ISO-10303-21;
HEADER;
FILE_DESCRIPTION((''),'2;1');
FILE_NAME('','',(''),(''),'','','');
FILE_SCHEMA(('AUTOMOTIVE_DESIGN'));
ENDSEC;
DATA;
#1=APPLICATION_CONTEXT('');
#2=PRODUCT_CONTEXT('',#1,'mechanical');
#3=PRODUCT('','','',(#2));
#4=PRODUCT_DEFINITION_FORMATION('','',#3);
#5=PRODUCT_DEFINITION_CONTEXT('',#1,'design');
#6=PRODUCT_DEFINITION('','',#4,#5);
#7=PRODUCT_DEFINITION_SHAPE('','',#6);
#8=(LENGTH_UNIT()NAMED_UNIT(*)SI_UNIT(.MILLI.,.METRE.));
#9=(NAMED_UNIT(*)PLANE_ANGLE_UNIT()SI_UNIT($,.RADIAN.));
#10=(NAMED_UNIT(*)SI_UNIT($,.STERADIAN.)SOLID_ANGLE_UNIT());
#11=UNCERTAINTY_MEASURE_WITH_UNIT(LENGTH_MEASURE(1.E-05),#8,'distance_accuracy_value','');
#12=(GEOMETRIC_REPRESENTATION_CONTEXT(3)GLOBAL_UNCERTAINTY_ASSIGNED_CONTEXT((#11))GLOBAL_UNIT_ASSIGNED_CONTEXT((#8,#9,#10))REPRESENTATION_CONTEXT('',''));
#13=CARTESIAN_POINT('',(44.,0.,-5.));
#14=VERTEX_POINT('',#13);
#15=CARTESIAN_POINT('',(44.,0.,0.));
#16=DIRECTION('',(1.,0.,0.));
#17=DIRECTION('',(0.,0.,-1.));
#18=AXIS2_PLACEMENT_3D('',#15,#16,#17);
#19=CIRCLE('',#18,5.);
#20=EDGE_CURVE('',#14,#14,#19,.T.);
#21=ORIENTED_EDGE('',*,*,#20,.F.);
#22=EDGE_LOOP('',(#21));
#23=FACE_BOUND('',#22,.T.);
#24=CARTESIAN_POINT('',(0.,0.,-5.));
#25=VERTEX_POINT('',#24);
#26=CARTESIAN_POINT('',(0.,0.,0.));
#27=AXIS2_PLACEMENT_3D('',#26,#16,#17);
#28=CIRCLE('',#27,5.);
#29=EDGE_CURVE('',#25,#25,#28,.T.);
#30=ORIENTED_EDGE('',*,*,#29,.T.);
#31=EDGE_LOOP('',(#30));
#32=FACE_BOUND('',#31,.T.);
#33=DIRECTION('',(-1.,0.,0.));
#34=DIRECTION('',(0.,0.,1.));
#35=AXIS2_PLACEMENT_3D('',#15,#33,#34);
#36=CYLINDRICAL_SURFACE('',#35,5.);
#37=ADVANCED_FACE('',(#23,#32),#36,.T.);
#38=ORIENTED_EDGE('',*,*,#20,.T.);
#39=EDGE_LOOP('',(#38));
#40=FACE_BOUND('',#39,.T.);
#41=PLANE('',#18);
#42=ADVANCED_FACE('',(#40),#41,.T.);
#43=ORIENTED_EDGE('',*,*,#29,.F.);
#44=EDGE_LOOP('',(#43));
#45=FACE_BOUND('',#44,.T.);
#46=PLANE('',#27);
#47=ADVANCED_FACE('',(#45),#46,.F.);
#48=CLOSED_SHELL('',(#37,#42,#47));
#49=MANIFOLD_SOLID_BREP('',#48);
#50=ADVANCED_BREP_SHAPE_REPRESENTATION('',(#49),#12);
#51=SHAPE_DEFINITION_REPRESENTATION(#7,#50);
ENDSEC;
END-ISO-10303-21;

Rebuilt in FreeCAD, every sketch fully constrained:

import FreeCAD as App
import Part
import Sketcher
from FreeCAD import Vector

doc = App.newDocument("Part")
body = doc.addObject("PartDesign::Body", "Body")

sketch1 = doc.addObject("Sketcher::SketchObject", "Sketch")
body.addObject(sketch1)
sketch1.AttachmentSupport = (doc.YZ_Plane, [""])
sketch1.MapMode = "FlatFace"
sketch1.addGeometry(Part.Circle(Vector(0, 0, 0), Vector(0, 0, 1), 5), False)
sketch1.addConstraint([
    Sketcher.Constraint("Coincident", 0, 3, -1, 1),
    Sketcher.Constraint("Diameter", 0, 10.0),
])
pad1 = doc.addObject("PartDesign::Pad", "Pad")
body.addObject(pad1)
pad1.Profile = sketch1
pad1.Length = 44

doc.recompute()
